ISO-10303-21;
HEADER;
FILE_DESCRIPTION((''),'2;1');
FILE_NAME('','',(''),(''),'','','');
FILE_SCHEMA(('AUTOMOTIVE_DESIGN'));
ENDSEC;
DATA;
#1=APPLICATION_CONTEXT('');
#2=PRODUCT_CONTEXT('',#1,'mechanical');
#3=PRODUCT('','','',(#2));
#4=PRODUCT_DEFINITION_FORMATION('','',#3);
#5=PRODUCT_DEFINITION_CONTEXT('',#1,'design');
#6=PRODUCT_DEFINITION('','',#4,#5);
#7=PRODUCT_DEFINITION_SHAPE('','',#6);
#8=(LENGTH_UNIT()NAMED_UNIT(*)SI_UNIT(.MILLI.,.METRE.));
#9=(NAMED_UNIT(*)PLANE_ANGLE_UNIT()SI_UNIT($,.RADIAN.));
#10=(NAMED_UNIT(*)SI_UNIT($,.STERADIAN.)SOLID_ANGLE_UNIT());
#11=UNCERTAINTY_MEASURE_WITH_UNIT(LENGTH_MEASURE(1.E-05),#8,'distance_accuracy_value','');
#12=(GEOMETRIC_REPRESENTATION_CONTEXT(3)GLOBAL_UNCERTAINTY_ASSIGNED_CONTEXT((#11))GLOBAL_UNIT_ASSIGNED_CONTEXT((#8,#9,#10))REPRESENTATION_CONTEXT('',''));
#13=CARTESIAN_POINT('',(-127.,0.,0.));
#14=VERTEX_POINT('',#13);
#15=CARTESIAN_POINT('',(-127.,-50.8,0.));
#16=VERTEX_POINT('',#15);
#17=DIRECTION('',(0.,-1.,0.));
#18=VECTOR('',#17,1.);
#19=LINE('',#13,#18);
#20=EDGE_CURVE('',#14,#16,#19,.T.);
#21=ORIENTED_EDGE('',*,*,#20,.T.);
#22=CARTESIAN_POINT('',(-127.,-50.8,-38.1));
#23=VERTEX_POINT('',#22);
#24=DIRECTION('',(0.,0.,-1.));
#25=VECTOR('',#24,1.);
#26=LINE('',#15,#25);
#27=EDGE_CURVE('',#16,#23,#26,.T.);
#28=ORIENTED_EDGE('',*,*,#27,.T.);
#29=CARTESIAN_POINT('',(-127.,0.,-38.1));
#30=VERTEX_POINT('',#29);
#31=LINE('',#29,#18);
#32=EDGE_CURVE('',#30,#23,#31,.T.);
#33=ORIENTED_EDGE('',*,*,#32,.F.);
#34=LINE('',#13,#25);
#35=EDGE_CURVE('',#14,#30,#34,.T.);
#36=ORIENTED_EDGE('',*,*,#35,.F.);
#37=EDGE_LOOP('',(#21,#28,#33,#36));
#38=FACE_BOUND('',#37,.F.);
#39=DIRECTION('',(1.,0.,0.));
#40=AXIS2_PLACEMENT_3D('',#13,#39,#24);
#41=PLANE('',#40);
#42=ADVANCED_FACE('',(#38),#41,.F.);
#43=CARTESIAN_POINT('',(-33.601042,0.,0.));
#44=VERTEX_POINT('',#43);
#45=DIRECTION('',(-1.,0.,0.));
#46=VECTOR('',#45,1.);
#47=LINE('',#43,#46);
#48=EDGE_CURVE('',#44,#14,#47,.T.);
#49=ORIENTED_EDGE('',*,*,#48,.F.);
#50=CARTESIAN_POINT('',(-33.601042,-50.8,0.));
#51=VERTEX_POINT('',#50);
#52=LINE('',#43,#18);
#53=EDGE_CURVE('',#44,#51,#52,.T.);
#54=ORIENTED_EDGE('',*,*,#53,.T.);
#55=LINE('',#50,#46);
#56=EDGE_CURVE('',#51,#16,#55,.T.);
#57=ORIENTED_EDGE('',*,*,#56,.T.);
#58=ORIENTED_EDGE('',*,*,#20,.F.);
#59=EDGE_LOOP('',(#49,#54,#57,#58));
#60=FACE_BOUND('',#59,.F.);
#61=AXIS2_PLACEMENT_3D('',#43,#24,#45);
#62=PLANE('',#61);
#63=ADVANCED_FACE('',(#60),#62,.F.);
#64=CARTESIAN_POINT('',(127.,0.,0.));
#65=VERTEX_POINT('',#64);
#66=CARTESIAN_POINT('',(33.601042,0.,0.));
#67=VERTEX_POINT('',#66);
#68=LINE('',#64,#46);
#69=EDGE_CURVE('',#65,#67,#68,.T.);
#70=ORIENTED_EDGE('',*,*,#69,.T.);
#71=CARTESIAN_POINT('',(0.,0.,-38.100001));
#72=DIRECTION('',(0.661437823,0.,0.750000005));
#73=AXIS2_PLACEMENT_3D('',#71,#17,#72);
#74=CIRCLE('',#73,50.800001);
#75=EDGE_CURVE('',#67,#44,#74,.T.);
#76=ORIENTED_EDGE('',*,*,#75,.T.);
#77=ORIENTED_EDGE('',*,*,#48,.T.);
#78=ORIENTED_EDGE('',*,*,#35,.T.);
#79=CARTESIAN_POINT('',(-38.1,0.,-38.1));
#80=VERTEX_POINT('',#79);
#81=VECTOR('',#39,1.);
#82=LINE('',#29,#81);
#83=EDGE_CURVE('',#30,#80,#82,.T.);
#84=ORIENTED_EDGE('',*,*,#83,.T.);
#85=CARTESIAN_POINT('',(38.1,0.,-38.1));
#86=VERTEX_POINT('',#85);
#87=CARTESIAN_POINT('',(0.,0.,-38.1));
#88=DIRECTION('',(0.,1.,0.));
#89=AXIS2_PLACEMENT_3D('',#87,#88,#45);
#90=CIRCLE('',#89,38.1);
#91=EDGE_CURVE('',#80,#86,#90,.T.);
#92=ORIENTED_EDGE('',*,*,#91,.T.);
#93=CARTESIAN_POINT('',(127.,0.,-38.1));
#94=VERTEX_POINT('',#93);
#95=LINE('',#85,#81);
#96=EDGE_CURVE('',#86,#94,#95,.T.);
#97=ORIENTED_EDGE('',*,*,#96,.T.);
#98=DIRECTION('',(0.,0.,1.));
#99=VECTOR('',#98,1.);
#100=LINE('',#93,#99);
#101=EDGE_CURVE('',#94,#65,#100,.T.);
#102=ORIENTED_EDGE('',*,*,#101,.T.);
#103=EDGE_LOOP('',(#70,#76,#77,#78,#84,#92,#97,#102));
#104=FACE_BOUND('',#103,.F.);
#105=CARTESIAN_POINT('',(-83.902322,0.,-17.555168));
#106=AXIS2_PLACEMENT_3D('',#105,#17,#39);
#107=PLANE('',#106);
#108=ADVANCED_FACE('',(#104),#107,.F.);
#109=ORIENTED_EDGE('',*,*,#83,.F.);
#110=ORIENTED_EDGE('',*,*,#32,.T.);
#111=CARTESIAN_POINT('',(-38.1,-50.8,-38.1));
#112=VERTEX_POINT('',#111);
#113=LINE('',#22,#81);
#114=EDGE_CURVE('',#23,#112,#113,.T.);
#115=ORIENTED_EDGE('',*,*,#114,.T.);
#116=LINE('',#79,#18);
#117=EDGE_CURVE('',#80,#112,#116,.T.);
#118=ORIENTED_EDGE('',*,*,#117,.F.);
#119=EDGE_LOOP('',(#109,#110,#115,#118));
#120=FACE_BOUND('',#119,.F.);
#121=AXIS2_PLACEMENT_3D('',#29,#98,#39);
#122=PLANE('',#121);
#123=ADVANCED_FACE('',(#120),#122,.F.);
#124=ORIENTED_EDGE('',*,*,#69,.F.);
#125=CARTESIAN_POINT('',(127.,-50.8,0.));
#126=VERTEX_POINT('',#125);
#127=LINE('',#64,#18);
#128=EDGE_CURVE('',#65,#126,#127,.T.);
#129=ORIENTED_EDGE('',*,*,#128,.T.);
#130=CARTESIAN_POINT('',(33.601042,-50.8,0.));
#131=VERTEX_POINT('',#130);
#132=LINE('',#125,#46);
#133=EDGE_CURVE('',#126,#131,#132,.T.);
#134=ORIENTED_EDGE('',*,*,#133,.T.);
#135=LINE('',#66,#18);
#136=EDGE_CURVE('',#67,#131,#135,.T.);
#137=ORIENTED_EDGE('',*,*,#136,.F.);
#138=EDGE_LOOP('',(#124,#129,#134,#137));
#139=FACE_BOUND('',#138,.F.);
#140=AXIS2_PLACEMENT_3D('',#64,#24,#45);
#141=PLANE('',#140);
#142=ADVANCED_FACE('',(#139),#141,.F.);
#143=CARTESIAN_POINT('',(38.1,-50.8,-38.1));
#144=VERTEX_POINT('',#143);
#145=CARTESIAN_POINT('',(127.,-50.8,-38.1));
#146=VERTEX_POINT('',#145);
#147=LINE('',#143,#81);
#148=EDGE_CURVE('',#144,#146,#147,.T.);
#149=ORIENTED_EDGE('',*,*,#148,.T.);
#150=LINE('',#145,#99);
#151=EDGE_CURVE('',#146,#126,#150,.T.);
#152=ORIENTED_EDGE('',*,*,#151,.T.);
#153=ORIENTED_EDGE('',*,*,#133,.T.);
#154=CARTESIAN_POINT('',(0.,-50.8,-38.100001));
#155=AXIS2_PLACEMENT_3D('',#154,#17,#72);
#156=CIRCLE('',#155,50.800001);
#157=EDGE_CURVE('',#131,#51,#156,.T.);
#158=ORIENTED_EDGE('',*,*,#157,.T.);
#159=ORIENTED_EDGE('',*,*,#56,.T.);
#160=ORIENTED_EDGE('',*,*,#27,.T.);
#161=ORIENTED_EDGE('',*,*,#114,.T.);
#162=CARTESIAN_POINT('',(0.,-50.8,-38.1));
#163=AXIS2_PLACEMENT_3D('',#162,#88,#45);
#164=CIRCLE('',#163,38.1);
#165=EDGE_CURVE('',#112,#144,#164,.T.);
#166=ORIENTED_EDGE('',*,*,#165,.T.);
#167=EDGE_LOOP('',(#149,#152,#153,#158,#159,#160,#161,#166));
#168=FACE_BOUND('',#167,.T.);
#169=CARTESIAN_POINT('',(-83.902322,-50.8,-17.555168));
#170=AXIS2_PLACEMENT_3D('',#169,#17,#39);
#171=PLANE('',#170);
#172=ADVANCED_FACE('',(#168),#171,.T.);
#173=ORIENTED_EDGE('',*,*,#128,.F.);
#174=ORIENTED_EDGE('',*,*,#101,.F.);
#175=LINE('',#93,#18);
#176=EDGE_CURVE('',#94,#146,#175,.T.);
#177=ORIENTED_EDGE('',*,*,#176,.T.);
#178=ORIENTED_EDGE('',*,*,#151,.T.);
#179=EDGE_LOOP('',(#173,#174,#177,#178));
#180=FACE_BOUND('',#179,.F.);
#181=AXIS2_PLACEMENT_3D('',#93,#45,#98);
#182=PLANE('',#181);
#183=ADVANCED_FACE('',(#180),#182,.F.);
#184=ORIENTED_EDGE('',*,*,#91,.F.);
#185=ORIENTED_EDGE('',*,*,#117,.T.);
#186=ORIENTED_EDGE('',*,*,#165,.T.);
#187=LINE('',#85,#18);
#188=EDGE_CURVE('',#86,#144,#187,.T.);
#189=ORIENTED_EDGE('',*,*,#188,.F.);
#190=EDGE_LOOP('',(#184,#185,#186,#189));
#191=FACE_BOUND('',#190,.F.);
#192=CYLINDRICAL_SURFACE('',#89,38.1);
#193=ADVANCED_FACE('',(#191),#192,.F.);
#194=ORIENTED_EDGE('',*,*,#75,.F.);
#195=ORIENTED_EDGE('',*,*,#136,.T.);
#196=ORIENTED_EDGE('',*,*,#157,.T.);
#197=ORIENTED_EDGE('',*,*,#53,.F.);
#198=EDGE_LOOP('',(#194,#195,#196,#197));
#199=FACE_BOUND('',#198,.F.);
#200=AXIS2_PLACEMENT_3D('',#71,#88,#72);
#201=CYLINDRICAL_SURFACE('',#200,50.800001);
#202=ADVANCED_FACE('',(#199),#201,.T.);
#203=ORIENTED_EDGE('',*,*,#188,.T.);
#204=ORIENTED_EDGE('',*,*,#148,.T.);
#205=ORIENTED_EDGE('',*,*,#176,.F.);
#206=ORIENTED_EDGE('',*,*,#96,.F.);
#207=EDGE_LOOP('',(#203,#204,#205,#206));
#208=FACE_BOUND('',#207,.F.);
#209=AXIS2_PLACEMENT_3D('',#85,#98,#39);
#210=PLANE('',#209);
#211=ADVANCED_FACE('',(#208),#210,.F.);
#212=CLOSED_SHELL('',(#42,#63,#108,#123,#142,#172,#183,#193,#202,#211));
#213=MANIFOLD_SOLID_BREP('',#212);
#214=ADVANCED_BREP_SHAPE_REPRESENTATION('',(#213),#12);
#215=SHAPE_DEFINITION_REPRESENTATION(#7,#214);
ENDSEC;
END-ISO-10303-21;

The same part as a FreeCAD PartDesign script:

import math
import FreeCAD as App
import Part
import Sketcher
from FreeCAD import Vector
Q = App.Units.Quantity

doc = App.newDocument("Part")
body = doc.addObject("PartDesign::Body", "Body")

# Sketch on XZ plane
sketch1 = body.newObject("Sketcher::SketchObject", "Sketch")
sketch1.AttachmentSupport = (doc.getObject("XZ_Plane"), [""])
sketch1.MapMode = "FlatFace"
sketch1.addGeometry([
    Part.LineSegment(Vector(-127, 0, 0), Vector(-127, -38, 0)),  # 0
    Part.LineSegment(Vector(-127, -38, 0), Vector(-38, -38, 0)),  # 1
    Part.ArcOfCircle(Part.Circle(Vector(0, -38, 0), Vector(0, 0, 1), 38), math.radians(0), math.radians(180)),  # 2
    Part.LineSegment(Vector(38, -38, 0), Vector(127, -38, 0)),  # 3
    Part.LineSegment(Vector(127, -38, 0), Vector(127, 0, 0)),  # 4
    Part.LineSegment(Vector(127, 0, 0), Vector(34, 0, 0)),  # 5
    Part.ArcOfCircle(Part.Circle(Vector(0, -38, 0), Vector(0, 0, 1), 51), math.radians(49), math.radians(131)),  # 6
    Part.LineSegment(Vector(-34, 0, 0), Vector(-127, 0, 0)),  # 7
], False)
sketch1.addConstraint([
    Sketcher.Constraint("Coincident", 0, 2, 1, 1),
    Sketcher.Constraint("Coincident", 1, 2, 2, 2),
    Sketcher.Constraint("Coincident", 2, 1, 3, 1),
    Sketcher.Constraint("Coincident", 3, 2, 4, 1),
    Sketcher.Constraint("Coincident", 4, 2, 5, 1),
    Sketcher.Constraint("Coincident", 5, 2, 6, 1),
    Sketcher.Constraint("Coincident", 6, 2, 7, 1),
    Sketcher.Constraint("Coincident", 7, 2, 0, 1),
    Sketcher.Constraint("Vertical", 0),
    Sketcher.Constraint("Horizontal", 1),
    Sketcher.Constraint("Horizontal", 3),
    Sketcher.Constraint("Vertical", 4),
    Sketcher.Constraint("Horizontal", 5),
    Sketcher.Constraint("Horizontal", 7),
    Sketcher.Constraint("Coincident", 6, 3, 2, 3),
    Sketcher.Constraint("Symmetric", 5, 2, 6, 2, -1, 1),
    Sketcher.Constraint("Symmetric", 1, 2, 2, 1, -2),
    Sketcher.Constraint("Horizontal", 6, 3, 0, 2),
    Sketcher.Constraint("Equal", 1, 3),
    Sketcher.Constraint("Radius", 6, Q("2 in")),
    Sketcher.Constraint("Radius", 2, Q("1.5 in")),
    Sketcher.Constraint("DistanceX", 1, 1, 1, 2, Q("3.5 in")),
    Sketcher.Constraint("DistanceY", 0, 2, 0, 1, Q("1.5 in")),
])
pad1 = body.newObject("PartDesign::Pad", "Pad")
pad1.Profile = sketch1
pad1.Length = Q("2 in")

doc.recompute()
